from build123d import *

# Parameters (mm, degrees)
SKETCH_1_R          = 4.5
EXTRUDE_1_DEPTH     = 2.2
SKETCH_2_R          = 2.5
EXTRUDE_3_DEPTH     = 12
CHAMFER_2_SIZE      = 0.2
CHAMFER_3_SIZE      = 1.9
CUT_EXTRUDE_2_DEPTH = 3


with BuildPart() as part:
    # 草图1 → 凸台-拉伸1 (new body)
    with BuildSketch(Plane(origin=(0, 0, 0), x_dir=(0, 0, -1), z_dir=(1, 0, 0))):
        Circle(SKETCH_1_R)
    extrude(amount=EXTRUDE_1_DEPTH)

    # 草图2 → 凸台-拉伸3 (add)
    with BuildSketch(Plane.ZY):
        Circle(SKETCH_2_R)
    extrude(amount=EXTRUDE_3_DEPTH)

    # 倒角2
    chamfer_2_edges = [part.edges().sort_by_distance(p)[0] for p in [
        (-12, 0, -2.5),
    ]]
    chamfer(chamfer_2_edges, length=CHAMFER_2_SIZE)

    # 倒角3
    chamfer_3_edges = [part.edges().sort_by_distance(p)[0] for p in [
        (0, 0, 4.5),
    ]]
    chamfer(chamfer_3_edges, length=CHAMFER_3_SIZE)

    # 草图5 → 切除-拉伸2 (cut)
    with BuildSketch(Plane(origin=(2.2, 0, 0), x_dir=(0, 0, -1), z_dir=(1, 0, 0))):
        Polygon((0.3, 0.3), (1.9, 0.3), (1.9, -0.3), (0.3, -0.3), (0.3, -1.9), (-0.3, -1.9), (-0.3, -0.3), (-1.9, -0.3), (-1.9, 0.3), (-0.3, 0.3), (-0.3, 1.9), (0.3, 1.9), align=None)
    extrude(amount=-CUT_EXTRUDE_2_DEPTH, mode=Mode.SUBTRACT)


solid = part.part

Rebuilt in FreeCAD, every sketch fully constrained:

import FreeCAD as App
import Part
import Sketcher

V = App.Vector
Q = App.Units.Quantity


def edges_at(feature, points):
    """Names of the edges that pass closest to the given points."""
    edges = feature.Shape.Edges
    near = lambda p: min(range(len(edges)), key=lambda i: edges[i].distToShape(Part.Vertex(*p))[0])
    return sorted({f"Edge{near(p) + 1}" for p in points})

doc = App.newDocument("Part")
body = doc.addObject("PartDesign::Body", "Body")

# Sketch on YZ plane
sketch1 = doc.addObject("Sketcher::SketchObject", "Sketch")
body.addObject(sketch1)
sketch1.AttachmentSupport = (doc.YZ_Plane, [""])
sketch1.MapMode = "FlatFace"
sketch1.addGeometry(Part.Circle(V(0, 0, 0), V(0, 0, 1), 4.5), False)
sketch1.addConstraint([
    Sketcher.Constraint("Coincident", 0, 3, -1, 1),
    Sketcher.Constraint("Diameter", 0, Q("9 mm")),
])
pad1 = doc.addObject("PartDesign::Pad", "Pad")
body.addObject(pad1)
pad1.Profile = sketch1
pad1.Length = 2.2

# Sketch on YZ plane
sketch2 = doc.addObject("Sketcher::SketchObject", "Sketch001")
body.addObject(sketch2)
sketch2.AttachmentSupport = (doc.YZ_Plane, [""])
sketch2.MapMode = "FlatFace"
sketch2.addGeometry(Part.Circle(V(0, 0, 0), V(0, 0, 1), 2.5), False)
sketch2.addConstraint([
    Sketcher.Constraint("Coincident", 0, 3, -1, 1),
    Sketcher.Constraint("Diameter", 0, Q("5 mm")),
])
pad2 = doc.addObject("PartDesign::Pad", "Pad001")
body.addObject(pad2)
pad2.Profile = sketch2
pad2.Length = 12
pad2.Reversed = True
doc.recompute()

chamfer = doc.addObject("PartDesign::Chamfer", "Chamfer")
body.addObject(chamfer)
chamfer.Base = (pad2, edges_at(pad2, [(-12, 0, -2.5)]))
chamfer.Size = 0.2
doc.recompute()

chamfer2 = doc.addObject("PartDesign::Chamfer", "Chamfer001")
body.addObject(chamfer2)
chamfer2.Base = (chamfer, edges_at(chamfer, [(0, 0, 4.5)]))
chamfer2.Size = 1.9

# Sketch on YZ plane
sketch3 = doc.addObject("Sketcher::SketchObject", "Sketch002")
body.addObject(sketch3)
sketch3.AttachmentSupport = (doc.YZ_Plane, [""])
sketch3.MapMode = "FlatFace"
sketch3.AttachmentOffset = App.Placement(V(0, 0, 2.2), App.Rotation())
sketch3.addGeometry([
    Part.LineSegment(V(0.3, -1.9, 0), V(0.3, -0.3, 0)),  # 0
    Part.LineSegment(V(0.3, -0.3, 0), V(1.9, -0.3, 0)),  # 1
    Part.LineSegment(V(1.9, -0.3, 0), V(1.9, 0.3, 0)),  # 2
    Part.LineSegment(V(1.9, 0.3, 0), V(0.3, 0.3, 0)),  # 3
    Part.LineSegment(V(0.3, 0.3, 0), V(0.3, 1.9, 0)),  # 4
    Part.LineSegment(V(0.3, 1.9, 0), V(-0.3, 1.9, 0)),  # 5
    Part.LineSegment(V(-0.3, 1.9, 0), V(-0.3, 0.3, 0)),  # 6
    Part.LineSegment(V(-0.3, 0.3, 0), V(-1.9, 0.3, 0)),  # 7
    Part.LineSegment(V(-1.9, 0.3, 0), V(-1.9, -0.3, 0)),  # 8
    Part.LineSegment(V(-1.9, -0.3, 0), V(-0.3, -0.3, 0)),  # 9
    Part.LineSegment(V(-0.3, -0.3, 0), V(-0.3, -1.9, 0)),  # 10
    Part.LineSegment(V(-0.3, -1.9, 0), V(0.3, -1.9, 0)),  # 11
], False)
sketch3.addConstraint([
    Sketcher.Constraint("Coincident", 0, 2, 1, 1),
    Sketcher.Constraint("Coincident", 1, 2, 2, 1),
    Sketcher.Constraint("Coincident", 2, 2, 3, 1),
    Sketcher.Constraint("Coincident", 3, 2, 4, 1),
    Sketcher.Constraint("Coincident", 4, 2, 5, 1),
    Sketcher.Constraint("Coincident", 5, 2, 6, 1),
    Sketcher.Constraint("Coincident", 6, 2, 7, 1),
    Sketcher.Constraint("Coincident", 7, 2, 8, 1),
    Sketcher.Constraint("Coincident", 8, 2, 9, 1),
    Sketcher.Constraint("Coincident", 9, 2, 10, 1),
    Sketcher.Constraint("Coincident", 10, 2, 11, 1),
    Sketcher.Constraint("Coincident", 11, 2, 0, 1),
    Sketcher.Constraint("Vertical", 0),
    Sketcher.Constraint("Horizontal", 1),
    Sketcher.Constraint("Vertical", 2),
    Sketcher.Constraint("Horizontal", 3),
    Sketcher.Constraint("Vertical", 4),
    Sketcher.Constraint("Horizontal", 5),
    Sketcher.Constraint("Vertical", 6),
    Sketcher.Constraint("Horizontal", 7),
    Sketcher.Constraint("Vertical", 8),
    Sketcher.Constraint("Horizontal", 9),
    Sketcher.Constraint("Vertical", 10),
    Sketcher.Constraint("Horizontal", 11),
    Sketcher.Constraint("Symmetric", 0, 2, 6, 2, -1, 1),
    Sketcher.Constraint("Symmetric", 2, 2, 8, 2, -1, 1),
    Sketcher.Constraint("Symmetric", 4, 2, 10, 2, -1, 1),
    Sketcher.Constraint("Symmetric", 3, 2, 6, 2, -2),
    Sketcher.Constraint("Equal", 9, 0),
    Sketcher.Constraint("Equal", 11, 2),
    Sketcher.Constraint("DistanceX", 1, 1, 1, 2, Q("1.6 mm")),
    Sketcher.Constraint("DistanceX", 5, 2, 5, 1, Q("0.6 mm")),
])
pocket1 = doc.addObject("PartDesign::Pocket", "Pocket")
body.addObject(pocket1)
pocket1.Profile = sketch3
pocket1.Length = 3

doc.recompute()
